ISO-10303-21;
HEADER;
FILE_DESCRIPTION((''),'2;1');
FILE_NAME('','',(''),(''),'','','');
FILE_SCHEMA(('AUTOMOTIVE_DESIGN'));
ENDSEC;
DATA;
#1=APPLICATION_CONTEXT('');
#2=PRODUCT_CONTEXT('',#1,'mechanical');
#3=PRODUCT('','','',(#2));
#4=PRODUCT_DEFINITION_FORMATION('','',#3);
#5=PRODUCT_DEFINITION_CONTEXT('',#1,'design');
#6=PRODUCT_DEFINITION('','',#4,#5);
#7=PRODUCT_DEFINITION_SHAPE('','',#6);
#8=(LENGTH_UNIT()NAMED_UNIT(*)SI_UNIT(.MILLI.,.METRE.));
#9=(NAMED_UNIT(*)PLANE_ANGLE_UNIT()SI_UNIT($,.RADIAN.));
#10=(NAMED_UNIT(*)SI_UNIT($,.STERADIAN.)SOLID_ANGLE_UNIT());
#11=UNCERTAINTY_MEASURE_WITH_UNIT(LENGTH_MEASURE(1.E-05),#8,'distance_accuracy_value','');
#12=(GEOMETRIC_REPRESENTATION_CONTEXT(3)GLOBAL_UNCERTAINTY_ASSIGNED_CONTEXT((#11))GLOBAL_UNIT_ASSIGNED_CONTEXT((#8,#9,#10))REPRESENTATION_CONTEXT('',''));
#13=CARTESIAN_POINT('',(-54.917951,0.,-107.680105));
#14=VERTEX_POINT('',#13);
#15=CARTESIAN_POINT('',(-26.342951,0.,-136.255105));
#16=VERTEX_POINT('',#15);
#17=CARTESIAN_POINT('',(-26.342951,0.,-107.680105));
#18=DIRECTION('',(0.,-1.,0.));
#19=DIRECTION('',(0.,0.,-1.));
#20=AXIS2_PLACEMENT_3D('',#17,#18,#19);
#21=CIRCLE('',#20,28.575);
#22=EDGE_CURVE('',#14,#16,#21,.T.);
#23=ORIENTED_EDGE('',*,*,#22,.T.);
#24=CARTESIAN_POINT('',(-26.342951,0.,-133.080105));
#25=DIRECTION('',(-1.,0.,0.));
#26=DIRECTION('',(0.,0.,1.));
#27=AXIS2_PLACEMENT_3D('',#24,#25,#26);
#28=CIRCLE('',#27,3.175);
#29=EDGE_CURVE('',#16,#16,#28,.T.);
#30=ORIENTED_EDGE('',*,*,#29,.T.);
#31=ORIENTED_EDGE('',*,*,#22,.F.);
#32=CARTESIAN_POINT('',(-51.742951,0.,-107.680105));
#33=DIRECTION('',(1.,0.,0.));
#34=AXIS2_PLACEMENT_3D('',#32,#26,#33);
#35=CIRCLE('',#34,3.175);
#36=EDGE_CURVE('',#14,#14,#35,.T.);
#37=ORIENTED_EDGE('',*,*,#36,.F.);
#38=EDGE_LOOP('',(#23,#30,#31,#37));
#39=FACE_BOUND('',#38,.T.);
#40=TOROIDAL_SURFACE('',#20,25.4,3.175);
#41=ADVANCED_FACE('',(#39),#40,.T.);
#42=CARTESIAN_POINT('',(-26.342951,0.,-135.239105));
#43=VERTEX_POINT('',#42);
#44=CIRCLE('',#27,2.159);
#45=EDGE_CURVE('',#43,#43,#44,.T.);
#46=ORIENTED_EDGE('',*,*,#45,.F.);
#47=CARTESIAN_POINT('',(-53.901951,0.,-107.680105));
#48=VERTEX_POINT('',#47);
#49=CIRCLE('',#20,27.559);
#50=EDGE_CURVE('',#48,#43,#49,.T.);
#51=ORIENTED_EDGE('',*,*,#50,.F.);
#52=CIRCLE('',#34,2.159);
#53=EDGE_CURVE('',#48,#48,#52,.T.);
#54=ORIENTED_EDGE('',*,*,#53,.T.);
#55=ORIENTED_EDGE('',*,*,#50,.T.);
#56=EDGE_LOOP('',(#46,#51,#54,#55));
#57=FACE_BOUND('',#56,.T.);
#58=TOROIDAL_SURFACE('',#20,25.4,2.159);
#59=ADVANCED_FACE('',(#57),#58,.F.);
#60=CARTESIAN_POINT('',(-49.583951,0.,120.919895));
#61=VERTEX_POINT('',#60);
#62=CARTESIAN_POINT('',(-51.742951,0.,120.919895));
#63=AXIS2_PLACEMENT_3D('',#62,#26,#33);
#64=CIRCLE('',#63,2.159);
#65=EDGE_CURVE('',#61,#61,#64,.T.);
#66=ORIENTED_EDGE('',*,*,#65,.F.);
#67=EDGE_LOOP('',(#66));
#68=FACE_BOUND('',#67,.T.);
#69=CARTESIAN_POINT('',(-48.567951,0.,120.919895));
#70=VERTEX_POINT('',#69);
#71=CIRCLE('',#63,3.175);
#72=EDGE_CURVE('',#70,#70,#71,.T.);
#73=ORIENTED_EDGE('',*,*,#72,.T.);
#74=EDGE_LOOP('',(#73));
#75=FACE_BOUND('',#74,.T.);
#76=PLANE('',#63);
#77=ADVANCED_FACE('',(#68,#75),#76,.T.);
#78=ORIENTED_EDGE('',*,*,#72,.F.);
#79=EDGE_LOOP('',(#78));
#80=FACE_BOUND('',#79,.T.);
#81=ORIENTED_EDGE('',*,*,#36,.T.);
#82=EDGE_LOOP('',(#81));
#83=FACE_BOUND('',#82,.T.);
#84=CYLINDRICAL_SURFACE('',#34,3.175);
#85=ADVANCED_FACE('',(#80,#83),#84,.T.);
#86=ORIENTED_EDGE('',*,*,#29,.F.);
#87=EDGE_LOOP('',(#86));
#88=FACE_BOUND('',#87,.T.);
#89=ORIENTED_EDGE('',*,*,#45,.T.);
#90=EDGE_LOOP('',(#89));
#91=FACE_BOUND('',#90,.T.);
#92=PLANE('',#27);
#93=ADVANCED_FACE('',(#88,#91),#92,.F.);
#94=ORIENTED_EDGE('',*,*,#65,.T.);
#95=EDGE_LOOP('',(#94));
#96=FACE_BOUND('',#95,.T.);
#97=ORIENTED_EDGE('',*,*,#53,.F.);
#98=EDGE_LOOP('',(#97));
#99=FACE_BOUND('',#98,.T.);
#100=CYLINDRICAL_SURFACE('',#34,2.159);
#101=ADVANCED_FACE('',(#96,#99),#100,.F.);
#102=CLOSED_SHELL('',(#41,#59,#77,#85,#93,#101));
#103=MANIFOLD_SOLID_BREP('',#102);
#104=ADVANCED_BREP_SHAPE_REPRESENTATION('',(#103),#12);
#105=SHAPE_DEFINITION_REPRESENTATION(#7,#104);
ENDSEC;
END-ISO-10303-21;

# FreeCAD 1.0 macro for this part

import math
import FreeCAD as App
import Part
import Sketcher
Q = App.Units.Quantity

doc = App.newDocument("Part")
body = doc.addObject("PartDesign::Body", "Body")

sketch1 = doc.addObject("Sketcher::SketchObject", "Sketch")
body.addObject(sketch1)
sketch1.AttachmentSupport = (doc.XY_Plane, [""])
sketch1.MapMode = "FlatFace"
sketch1.AttachmentOffset = App.Placement(App.Vector(0, 0, 120.919895), App.Rotation())
sketch1.addGeometry([
    Part.Circle(App.Vector(-51.7, 0, 0), App.Vector(0, 0, 1), 3.2),
    Part.Circle(App.Vector(-51.7, 0, 0), App.Vector(0, 0, 1), 2.2),
], False)
sketch1.addConstraint([
    Sketcher.Constraint("Coincident", 1, 3, 0, 3),
    Sketcher.Constraint("PointOnObject", 0, 3, -1),
    Sketcher.Constraint("Diameter", 0, Q("0.25 in")),
    Sketcher.Constraint("Diameter", 1, Q("0.17 in")),
    Sketcher.Constraint("DistanceX", 0, 3, -1, 1, 51.742951),
])

sketch2 = doc.addObject("Sketcher::SketchObject", "Sketch001")
body.addObject(sketch2)
sketch2.AttachmentSupport = (doc.XZ_Plane, [""])
sketch2.MapMode = "FlatFace"
sketch2.addGeometry([
    Part.LineSegment(App.Vector(-52, 121, 0), App.Vector(-52, -108, 0)),
    Part.ArcOfCircle(Part.Circle(App.Vector(-26, -108, 0), App.Vector(0, 0, 1), 25), math.radians(180), math.radians(270)),
], False)
sketch2.addConstraint([
    Sketcher.Constraint("Tangent", 0, 2, 1, 1),
    Sketcher.Constraint("Vertical", 0),
    Sketcher.Constraint("Radius", 1, Q("1 in")),
    Sketcher.Constraint("DistanceY", 0, 2, 0, 1, Q("9 in")),
    Sketcher.Constraint("DistanceX", 0, 2, 1, 2, Q("1 in")),
    Sketcher.Constraint("DistanceX", 1, 3, -1, 1, 26.342951),
    Sketcher.Constraint("DistanceY", 1, 3, -1, 1, 107.680105),
])
doc.recompute()

additivepipe = doc.addObject("PartDesign::AdditivePipe", "AdditivePipe")
body.addObject(additivepipe)
additivepipe.Profile = sketch1
additivepipe.Spine = (sketch2, ["Edge1", "Edge2"])

doc.recompute()
